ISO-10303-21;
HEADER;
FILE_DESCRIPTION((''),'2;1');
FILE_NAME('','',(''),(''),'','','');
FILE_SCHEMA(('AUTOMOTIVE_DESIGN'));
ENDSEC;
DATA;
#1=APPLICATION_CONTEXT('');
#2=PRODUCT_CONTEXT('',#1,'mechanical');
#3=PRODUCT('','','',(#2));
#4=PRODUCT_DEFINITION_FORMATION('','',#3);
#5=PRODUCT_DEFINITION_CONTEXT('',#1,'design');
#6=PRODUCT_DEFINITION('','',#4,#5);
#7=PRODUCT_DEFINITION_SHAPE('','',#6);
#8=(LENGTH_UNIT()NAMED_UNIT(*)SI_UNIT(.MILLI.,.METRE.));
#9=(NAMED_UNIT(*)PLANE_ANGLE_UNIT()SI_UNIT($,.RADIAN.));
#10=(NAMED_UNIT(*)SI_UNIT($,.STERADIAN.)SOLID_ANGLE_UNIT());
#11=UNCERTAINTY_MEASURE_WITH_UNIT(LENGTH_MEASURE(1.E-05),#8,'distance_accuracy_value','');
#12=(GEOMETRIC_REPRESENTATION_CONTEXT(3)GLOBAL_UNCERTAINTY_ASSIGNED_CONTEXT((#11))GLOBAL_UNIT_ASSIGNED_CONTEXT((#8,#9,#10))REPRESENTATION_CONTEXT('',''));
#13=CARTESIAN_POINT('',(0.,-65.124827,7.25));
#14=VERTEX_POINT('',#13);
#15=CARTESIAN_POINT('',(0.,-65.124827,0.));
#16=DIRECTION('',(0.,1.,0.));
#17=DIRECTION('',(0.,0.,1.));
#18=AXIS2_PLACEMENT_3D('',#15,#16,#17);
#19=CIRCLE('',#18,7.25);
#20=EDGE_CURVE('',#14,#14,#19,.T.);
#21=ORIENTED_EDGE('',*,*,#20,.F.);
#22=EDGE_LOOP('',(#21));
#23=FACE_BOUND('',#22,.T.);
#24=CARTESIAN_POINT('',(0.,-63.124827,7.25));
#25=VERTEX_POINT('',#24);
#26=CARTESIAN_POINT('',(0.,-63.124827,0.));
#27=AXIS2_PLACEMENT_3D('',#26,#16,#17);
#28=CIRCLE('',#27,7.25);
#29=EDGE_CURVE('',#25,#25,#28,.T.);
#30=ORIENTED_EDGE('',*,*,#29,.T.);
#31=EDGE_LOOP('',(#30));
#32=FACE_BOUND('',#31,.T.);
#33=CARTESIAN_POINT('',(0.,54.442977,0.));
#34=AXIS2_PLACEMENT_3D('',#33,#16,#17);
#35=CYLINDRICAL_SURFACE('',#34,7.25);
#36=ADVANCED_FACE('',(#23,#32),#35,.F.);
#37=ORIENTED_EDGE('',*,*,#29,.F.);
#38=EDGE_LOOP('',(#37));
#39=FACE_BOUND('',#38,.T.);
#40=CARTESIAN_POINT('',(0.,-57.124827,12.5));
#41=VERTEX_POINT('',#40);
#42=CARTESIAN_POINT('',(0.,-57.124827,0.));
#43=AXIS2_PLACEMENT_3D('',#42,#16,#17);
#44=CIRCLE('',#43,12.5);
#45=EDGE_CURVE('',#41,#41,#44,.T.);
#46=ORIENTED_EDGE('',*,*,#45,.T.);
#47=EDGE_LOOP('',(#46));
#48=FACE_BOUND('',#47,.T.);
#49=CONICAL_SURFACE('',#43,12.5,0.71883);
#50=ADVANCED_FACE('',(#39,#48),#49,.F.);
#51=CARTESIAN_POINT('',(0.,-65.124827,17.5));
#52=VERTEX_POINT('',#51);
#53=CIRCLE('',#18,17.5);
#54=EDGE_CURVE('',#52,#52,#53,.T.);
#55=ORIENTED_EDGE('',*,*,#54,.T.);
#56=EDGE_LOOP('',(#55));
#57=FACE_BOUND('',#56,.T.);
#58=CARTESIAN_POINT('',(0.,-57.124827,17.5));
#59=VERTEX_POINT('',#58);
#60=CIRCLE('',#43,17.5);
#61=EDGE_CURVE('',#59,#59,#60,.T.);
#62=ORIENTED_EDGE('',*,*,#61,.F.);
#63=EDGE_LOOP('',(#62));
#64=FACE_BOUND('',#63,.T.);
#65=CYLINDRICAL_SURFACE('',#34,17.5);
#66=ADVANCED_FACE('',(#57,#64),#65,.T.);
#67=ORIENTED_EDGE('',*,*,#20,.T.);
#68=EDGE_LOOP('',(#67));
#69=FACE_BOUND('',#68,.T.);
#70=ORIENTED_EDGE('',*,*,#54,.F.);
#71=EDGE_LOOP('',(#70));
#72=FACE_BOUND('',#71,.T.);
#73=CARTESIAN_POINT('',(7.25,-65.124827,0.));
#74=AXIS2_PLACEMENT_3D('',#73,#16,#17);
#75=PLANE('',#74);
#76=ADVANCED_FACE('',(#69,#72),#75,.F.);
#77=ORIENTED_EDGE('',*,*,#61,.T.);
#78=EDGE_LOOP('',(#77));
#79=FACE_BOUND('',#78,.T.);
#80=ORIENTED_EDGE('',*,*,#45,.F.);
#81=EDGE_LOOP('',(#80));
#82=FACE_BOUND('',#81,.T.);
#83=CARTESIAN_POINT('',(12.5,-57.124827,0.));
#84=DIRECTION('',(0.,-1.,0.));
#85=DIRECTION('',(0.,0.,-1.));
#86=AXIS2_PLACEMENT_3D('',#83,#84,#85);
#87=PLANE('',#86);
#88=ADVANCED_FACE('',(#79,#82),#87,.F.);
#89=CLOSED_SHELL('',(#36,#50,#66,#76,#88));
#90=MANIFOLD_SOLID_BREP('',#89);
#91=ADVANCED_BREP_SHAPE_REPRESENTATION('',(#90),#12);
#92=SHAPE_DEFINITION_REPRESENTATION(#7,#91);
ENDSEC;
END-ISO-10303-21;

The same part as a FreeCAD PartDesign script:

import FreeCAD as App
import Part
import Sketcher
Q = App.Units.Quantity


def add_polygon(sketch, points):
    """Adds a closed chain of lines whose ends are joined by coincident constraints."""
    first, n = sketch.GeometryCount, len(points)
    for a, b in zip(points, points[1:] + points[:1]):
        sketch.addGeometry(Part.LineSegment(App.Vector(*a, 0), App.Vector(*b, 0)), False)
    for i in range(n):
        sketch.addConstraint(Sketcher.Constraint("Coincident", first + i, 2, first + (i + 1) % n, 1))

doc = App.newDocument("Part")
body = doc.addObject("PartDesign::Body", "Body")

sketch1 = body.newObject("Sketcher::SketchObject", "Sketch")
sketch1.AttachmentSupport = (doc.getObject("XY_Plane"), [""])
sketch1.MapMode = "FlatFace"
add_polygon(sketch1, [(7.2, -65.1), (17.5, -65.1), (17.5, -57.1), (12.5, -57.1), (7.2, -63.1)])
sketch1.addConstraint(Sketcher.Constraint("Horizontal", 0))
sketch1.addConstraint(Sketcher.Constraint("Vertical", 1))
sketch1.addConstraint(Sketcher.Constraint("Horizontal", 2))
sketch1.addConstraint(Sketcher.Constraint("Vertical", 4))
sketch1.addConstraint(Sketcher.Constraint("DistanceX", 2, 2, 2, 1, Q("5 mm")))
sketch1.addConstraint(Sketcher.Constraint("DistanceY", 1, 1, 1, 2, Q("8 mm")))
sketch1.addConstraint(Sketcher.Constraint("DistanceY", 4, 2, 4, 1, Q("2 mm")))
sketch1.addConstraint(Sketcher.Constraint("DistanceX", 0, 1, 0, 2, Q("10.25 mm")))
sketch1.addConstraint(Sketcher.Constraint("DistanceX", -1, 1, 0, 2, Q("17.5 mm")))
sketch1.addConstraint(Sketcher.Constraint("DistanceY", 0, 2, -1, 1, Q("65.124827 mm")))
revolution = body.newObject("PartDesign::Revolution", "Revolution")
revolution.Profile = sketch1
revolution.ReferenceAxis = (sketch1, ["V_Axis"])
revolution.Angle = 360

doc.recompute()
